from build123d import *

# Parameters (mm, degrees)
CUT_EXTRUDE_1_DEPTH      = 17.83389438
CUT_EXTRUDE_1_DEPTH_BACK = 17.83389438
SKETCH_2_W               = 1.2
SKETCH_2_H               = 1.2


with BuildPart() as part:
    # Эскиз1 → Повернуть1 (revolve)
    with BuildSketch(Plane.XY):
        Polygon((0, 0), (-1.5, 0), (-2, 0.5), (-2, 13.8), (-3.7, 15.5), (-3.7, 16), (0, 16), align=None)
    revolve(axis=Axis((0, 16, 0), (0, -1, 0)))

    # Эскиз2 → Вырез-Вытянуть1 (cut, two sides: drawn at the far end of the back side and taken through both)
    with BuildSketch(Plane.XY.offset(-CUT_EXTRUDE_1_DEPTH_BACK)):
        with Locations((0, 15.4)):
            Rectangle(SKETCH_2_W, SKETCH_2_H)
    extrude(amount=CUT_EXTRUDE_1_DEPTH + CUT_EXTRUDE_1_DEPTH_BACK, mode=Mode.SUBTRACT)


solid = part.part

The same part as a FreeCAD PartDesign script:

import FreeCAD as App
import Part
import Sketcher
Q = App.Units.Quantity


def add_polygon(sketch, points):
    """Adds a closed chain of lines whose ends are joined by coincident constraints."""
    first, n = sketch.GeometryCount, len(points)
    for a, b in zip(points, points[1:] + points[:1]):
        sketch.addGeometry(Part.LineSegment(App.Vector(*a, 0), App.Vector(*b, 0)), False)
    for i in range(n):
        sketch.addConstraint(Sketcher.Constraint("Coincident", first + i, 2, first + (i + 1) % n, 1))

doc = App.newDocument("Part")
body = doc.addObject("PartDesign::Body", "Body")

# Sketch on XY plane
sketch1 = doc.addObject("Sketcher::SketchObject", "Sketch")
body.addObject(sketch1)
sketch1.AttachmentSupport = (doc.XY_Plane, [""])
sketch1.MapMode = "FlatFace"
add_polygon(sketch1, [(-1.5, 0), (0, 0), (0, 16), (-3.7, 16), (-3.7, 15.5), (-2, 13.8), (-2, 0.5)])  # lines 0-6
sketch1.addConstraint([
    Sketcher.Constraint("Horizontal", 0),
    Sketcher.Constraint("Vertical", 1),
    Sketcher.Constraint("Horizontal", 2),
    Sketcher.Constraint("Vertical", 3),
    Sketcher.Constraint("Vertical", 5),
    Sketcher.Constraint("Coincident", 0, 2, -1, 1),
    Sketcher.Constraint("Parallel", 4, 6),
    Sketcher.Constraint("DistanceY", 1, 1, 1, 2, Q("16 mm")),
    Sketcher.Constraint("Angle", 4, Q("-45 deg")),
    Sketcher.Constraint("DistanceX", 0, 1, 0, 2, Q("1.5 mm")),
    Sketcher.Constraint("DistanceX", 2, 2, 2, 1, Q("3.7 mm")),
    Sketcher.Constraint("DistanceY", 3, 2, 3, 1, Q("0.5 mm")),
    Sketcher.Constraint("DistanceX", 4, 2, -1, 1, Q("2 mm")),
])
revolution = doc.addObject("PartDesign::Revolution", "Revolution")
body.addObject(revolution)
revolution.Profile = sketch1
revolution.ReferenceAxis = (sketch1, ["V_Axis"])
revolution.Angle = 360

# Sketch on XY plane
sketch2 = doc.addObject("Sketcher::SketchObject", "Sketch001")
body.addObject(sketch2)
sketch2.AttachmentSupport = (doc.XY_Plane, [""])
sketch2.MapMode = "FlatFace"
add_polygon(sketch2, [(-0.6, 16), (-0.6, 14.8), (0.6, 14.8), (0.6, 16)])  # lines 0-3
sketch2.addConstraint([
    Sketcher.Constraint("Vertical", 0),
    Sketcher.Constraint("Horizontal", 1),
    Sketcher.Constraint("Vertical", 2),
    Sketcher.Constraint("Horizontal", 3),
    Sketcher.Constraint("Equal", 3, 0),
    Sketcher.Constraint("DistanceX", 1, 1, 1, 2, Q("1.2 mm")),
    Sketcher.Constraint("DistanceY", -1, 1, 2, 2, Q("16 mm")),
    Sketcher.Constraint("DistanceX", 0, 2, -1, 1, Q("0.6 mm")),
])
pocket1 = doc.addObject("PartDesign::Pocket", "Pocket")
body.addObject(pocket1)
pocket1.Profile = sketch2
pocket1.Type = "ThroughAll"
pocket1.Midplane = True

doc.recompute()
